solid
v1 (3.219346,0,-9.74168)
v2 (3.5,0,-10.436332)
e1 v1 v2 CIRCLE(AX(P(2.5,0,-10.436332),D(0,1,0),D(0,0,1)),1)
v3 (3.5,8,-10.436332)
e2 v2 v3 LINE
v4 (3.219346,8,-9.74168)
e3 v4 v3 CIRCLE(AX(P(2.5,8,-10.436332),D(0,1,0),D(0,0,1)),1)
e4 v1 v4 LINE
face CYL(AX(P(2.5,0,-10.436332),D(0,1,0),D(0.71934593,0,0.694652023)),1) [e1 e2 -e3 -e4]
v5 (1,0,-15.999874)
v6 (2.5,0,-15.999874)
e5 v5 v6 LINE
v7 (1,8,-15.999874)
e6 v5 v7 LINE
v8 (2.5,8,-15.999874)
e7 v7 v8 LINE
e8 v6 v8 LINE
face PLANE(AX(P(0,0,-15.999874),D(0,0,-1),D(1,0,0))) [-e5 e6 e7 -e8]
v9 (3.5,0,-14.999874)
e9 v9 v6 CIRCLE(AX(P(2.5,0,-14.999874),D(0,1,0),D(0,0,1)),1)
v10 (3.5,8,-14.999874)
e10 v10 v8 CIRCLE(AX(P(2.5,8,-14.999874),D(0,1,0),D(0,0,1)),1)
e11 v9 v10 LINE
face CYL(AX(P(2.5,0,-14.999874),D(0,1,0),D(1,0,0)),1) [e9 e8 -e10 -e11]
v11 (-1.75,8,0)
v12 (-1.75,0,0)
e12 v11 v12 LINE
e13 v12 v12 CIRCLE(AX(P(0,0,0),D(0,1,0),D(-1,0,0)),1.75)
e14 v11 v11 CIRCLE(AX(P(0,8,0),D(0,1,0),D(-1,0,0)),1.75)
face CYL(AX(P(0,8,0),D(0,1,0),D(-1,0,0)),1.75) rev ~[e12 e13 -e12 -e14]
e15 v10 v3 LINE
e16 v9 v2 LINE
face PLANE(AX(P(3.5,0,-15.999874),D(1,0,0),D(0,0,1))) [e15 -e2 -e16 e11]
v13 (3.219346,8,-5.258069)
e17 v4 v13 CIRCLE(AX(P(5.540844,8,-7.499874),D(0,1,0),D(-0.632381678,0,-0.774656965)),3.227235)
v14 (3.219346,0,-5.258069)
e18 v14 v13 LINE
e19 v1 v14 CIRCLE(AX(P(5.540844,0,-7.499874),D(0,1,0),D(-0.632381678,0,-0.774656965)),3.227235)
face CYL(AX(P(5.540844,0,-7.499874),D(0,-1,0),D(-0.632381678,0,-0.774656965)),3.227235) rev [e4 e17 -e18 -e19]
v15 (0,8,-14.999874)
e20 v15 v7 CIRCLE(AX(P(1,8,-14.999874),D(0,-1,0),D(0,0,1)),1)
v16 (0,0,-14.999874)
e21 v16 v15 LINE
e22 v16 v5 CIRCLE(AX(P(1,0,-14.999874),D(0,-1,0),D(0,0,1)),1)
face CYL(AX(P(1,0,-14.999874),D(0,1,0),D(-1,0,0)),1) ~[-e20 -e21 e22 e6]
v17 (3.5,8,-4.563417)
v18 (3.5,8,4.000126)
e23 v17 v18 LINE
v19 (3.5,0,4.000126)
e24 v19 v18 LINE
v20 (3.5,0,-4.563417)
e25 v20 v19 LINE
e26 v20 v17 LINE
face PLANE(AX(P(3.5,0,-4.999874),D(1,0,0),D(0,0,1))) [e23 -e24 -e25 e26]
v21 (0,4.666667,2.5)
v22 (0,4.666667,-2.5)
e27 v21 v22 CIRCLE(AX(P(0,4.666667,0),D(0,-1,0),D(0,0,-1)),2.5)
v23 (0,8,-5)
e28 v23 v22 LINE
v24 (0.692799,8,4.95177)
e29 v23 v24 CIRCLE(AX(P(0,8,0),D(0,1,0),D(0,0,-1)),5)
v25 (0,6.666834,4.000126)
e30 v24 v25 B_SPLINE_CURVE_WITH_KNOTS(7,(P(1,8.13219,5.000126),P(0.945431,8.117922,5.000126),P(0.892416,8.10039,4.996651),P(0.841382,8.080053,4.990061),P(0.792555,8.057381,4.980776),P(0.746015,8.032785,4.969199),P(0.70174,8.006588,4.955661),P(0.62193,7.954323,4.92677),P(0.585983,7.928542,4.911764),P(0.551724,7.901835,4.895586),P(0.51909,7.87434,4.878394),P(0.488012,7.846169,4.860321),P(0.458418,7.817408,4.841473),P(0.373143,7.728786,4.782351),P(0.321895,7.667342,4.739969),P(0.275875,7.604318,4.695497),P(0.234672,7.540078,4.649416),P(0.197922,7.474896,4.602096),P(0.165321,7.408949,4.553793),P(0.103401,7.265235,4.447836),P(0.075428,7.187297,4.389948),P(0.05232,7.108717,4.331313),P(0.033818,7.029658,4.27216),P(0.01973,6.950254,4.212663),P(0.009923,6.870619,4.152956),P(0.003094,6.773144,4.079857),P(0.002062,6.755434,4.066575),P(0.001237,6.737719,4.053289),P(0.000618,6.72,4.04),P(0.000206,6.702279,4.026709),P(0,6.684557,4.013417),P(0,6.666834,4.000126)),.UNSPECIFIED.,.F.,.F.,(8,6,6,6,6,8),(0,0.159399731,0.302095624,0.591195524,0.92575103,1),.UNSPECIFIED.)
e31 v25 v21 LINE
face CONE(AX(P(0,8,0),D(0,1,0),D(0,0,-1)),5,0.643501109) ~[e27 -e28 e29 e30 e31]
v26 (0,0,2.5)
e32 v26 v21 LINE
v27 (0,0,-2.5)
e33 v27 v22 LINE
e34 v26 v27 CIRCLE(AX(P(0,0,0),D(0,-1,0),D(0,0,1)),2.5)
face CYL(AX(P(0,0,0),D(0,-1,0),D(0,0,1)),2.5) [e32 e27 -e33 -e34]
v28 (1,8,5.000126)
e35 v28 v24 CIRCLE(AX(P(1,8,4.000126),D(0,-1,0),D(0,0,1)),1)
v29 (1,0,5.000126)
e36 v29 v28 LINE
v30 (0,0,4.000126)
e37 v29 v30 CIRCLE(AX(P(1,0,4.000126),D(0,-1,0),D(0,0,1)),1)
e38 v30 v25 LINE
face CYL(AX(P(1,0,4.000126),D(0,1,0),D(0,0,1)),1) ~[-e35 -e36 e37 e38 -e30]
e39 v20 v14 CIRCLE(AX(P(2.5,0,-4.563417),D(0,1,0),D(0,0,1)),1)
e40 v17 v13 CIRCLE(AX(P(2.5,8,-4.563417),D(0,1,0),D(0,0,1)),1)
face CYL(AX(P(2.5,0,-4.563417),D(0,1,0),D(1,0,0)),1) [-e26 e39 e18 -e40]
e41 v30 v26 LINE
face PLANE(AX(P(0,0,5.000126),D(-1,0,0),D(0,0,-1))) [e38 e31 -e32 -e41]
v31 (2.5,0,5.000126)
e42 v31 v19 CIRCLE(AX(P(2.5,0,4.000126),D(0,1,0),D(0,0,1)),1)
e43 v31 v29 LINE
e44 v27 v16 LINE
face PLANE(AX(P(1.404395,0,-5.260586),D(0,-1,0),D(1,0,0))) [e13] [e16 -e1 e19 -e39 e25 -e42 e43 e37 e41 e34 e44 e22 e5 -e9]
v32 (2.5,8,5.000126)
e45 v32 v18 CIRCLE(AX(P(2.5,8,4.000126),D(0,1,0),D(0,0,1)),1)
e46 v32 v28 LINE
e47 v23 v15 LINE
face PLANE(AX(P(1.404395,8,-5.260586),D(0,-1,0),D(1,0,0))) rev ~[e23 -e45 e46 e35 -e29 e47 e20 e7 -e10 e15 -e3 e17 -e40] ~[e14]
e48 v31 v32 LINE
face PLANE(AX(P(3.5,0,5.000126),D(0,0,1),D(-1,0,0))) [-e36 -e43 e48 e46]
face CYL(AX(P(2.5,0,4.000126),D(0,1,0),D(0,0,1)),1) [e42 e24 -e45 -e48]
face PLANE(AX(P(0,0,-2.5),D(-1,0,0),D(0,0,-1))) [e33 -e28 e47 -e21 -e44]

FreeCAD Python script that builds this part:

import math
import FreeCAD as App
import Part
import Sketcher
from FreeCAD import Vector


def edges_at(feature, points):
    """Names of the edges that pass closest to the given points."""
    edges = feature.Shape.Edges
    near = lambda p: min(range(len(edges)), key=lambda i: edges[i].distToShape(Part.Vertex(*p))[0])
    return sorted({f"Edge{near(p) + 1}" for p in points})


def add_polygon(sketch, points):
    """Adds a closed chain of lines whose ends are joined by coincident constraints."""
    first, n = sketch.GeometryCount, len(points)
    for a, b in zip(points, points[1:] + points[:1]):
        sketch.addGeometry(Part.LineSegment(App.Vector(*a, 0), App.Vector(*b, 0)), False)
    for i in range(n):
        sketch.addConstraint(Sketcher.Constraint("Coincident", first + i, 2, first + (i + 1) % n, 1))

doc = App.newDocument("Part")
body = doc.addObject("PartDesign::Body", "Body")

# Sketch on YZ plane
sketch1 = body.newObject("Sketcher::SketchObject", "Sketch")
sketch1.AttachmentSupport = (doc.getObject("YZ_Plane"), [""])
sketch1.MapMode = "FlatFace"
add_polygon(sketch1, [(0, 0), (8, 0), (8, -5), (2.7, -1), (0, -1)])  # lines 0-4
sketch1.addConstraint([
    Sketcher.Constraint("Horizontal", 0),
    Sketcher.Constraint("Vertical", 1),
    Sketcher.Constraint("Horizontal", 3),
    Sketcher.Constraint("Vertical", 4),
    Sketcher.Constraint("Coincident", 4, 2, -1, 1),
    Sketcher.Constraint("DistanceX", 0, 1, 0, 2, 8.0),
    Sketcher.Constraint("DistanceY", 1, 2, 1, 1, 5.0),
    Sketcher.Constraint("DistanceY", 4, 1, 4, 2, 1.0),
    Sketcher.Constraint("DistanceX", 3, 2, 3, 1, 2.666667),
])
revolution = body.newObject("PartDesign::Revolution", "Revolution")
revolution.Profile = sketch1
revolution.ReferenceAxis = (sketch1, ["H_Axis"])
revolution.Angle = 180

# Sketch on XZ plane
sketch2 = body.newObject("Sketcher::SketchObject", "Sketch001")
sketch2.AttachmentSupport = (doc.getObject("XZ_Plane"), [""])
sketch2.MapMode = "FlatFace"
sketch2.addGeometry([
    Part.LineSegment(Vector(3.5, 5, 0), Vector(0, 5, 0)),  # 0
    Part.LineSegment(Vector(0, 5, 0), Vector(0, 2.5, 0)),  # 1
    Part.ArcOfCircle(Part.Circle(Vector(0, 0, 0), Vector(0, 0, 1), 2.5), math.radians(90), math.radians(270)),  # 2
    Part.LineSegment(Vector(0, -2.5, 0), Vector(0, -16, 0)),  # 3
    Part.LineSegment(Vector(0, -16, 0), Vector(3.5, -16, 0)),  # 4
    Part.LineSegment(Vector(3.5, -16, 0), Vector(3.5, -10, 0)),  # 5
    Part.ArcOfCircle(Part.Circle(Vector(5.5, -7.5, 0), Vector(0, 0, 1), 3.2), math.radians(129), math.radians(231)),  # 6
    Part.LineSegment(Vector(3.5, -5, 0), Vector(3.5, 5, 0)),  # 7
], False)
sketch2.addConstraint([
    Sketcher.Constraint("Coincident", 0, 2, 1, 1),
    Sketcher.Constraint("Coincident", 1, 2, 2, 1),
    Sketcher.Constraint("Coincident", 2, 2, 3, 1),
    Sketcher.Constraint("Coincident", 3, 2, 4, 1),
    Sketcher.Constraint("Coincident", 4, 2, 5, 1),
    Sketcher.Constraint("Coincident", 5, 2, 6, 2),
    Sketcher.Constraint("Coincident", 6, 1, 7, 1),
    Sketcher.Constraint("Coincident", 7, 2, 0, 1),
    Sketcher.Constraint("Horizontal", 0),
    Sketcher.Constraint("Vertical", 1),
    Sketcher.Constraint("Vertical", 3),
    Sketcher.Constraint("Horizontal", 4),
    Sketcher.Constraint("Vertical", 5),
    Sketcher.Constraint("Vertical", 7),
    Sketcher.Constraint("Coincident", 2, 3, -1, 1),
    Sketcher.Constraint("PointOnObject", 0, 2, -2),
    Sketcher.Constraint("PointOnObject", 2, 2, -2),
    Sketcher.Constraint("Vertical", 5, 2, 6, 1),
    Sketcher.Constraint("Radius", 2, 2.5),
    Sketcher.Constraint("DistanceY", 5, 1, 5, 2, 6.0),
    Sketcher.Constraint("DistanceY", 7, 1, 7, 2, 10.0),
    Sketcher.Constraint("DistanceX", 0, 2, 0, 1, 3.5),
    Sketcher.Constraint("DistanceY", 3, 2, 0, 2, 21.0),
    Sketcher.Constraint("Radius", 6, 3.227235),
    Sketcher.Constraint("DistanceY", 1, 2, 1, 1, 2.500126),
])
pad1 = body.newObject("PartDesign::Pad", "Pad")
pad1.Profile = sketch2
pad1.Length = 8
pad1.Reversed = True

# Sketch on XZ plane
sketch3 = body.newObject("Sketcher::SketchObject", "Sketch002")
sketch3.AttachmentSupport = (doc.getObject("XZ_Plane"), [""])
sketch3.MapMode = "FlatFace"
sketch3.AttachmentOffset = App.Placement(Vector(0, 0, -8), App.Rotation())
sketch3.addGeometry(Part.Circle(Vector(0, 0, 0), Vector(0, 0, 1), 1.8), False)
sketch3.addConstraint([
    Sketcher.Constraint("Coincident", 0, 3, -1, 1),
    Sketcher.Constraint("Diameter", 0, 3.5),
])
pocket1 = body.newObject("PartDesign::Pocket", "Pocket")
pocket1.Profile = sketch3
pocket1.Length = 25
pocket1.Reversed = True
doc.recompute()

fillet = body.newObject("PartDesign::Fillet", "Fillet")
fillet.Base = (pocket1, edges_at(pocket1, [
    (3.5, 4, 5),
    (0, 4, -16),
    (3.5, 4, -16),
    (3.5, 4, -10),
    (3.5, 4, -5),
]))
fillet.Radius = 1
doc.recompute()

fillet2 = body.newObject("PartDesign::Fillet", "Fillet001")
fillet2.Base = (fillet, edges_at(fillet, [(0, 4, 5)]))
fillet2.Radius = 1

doc.recompute()
